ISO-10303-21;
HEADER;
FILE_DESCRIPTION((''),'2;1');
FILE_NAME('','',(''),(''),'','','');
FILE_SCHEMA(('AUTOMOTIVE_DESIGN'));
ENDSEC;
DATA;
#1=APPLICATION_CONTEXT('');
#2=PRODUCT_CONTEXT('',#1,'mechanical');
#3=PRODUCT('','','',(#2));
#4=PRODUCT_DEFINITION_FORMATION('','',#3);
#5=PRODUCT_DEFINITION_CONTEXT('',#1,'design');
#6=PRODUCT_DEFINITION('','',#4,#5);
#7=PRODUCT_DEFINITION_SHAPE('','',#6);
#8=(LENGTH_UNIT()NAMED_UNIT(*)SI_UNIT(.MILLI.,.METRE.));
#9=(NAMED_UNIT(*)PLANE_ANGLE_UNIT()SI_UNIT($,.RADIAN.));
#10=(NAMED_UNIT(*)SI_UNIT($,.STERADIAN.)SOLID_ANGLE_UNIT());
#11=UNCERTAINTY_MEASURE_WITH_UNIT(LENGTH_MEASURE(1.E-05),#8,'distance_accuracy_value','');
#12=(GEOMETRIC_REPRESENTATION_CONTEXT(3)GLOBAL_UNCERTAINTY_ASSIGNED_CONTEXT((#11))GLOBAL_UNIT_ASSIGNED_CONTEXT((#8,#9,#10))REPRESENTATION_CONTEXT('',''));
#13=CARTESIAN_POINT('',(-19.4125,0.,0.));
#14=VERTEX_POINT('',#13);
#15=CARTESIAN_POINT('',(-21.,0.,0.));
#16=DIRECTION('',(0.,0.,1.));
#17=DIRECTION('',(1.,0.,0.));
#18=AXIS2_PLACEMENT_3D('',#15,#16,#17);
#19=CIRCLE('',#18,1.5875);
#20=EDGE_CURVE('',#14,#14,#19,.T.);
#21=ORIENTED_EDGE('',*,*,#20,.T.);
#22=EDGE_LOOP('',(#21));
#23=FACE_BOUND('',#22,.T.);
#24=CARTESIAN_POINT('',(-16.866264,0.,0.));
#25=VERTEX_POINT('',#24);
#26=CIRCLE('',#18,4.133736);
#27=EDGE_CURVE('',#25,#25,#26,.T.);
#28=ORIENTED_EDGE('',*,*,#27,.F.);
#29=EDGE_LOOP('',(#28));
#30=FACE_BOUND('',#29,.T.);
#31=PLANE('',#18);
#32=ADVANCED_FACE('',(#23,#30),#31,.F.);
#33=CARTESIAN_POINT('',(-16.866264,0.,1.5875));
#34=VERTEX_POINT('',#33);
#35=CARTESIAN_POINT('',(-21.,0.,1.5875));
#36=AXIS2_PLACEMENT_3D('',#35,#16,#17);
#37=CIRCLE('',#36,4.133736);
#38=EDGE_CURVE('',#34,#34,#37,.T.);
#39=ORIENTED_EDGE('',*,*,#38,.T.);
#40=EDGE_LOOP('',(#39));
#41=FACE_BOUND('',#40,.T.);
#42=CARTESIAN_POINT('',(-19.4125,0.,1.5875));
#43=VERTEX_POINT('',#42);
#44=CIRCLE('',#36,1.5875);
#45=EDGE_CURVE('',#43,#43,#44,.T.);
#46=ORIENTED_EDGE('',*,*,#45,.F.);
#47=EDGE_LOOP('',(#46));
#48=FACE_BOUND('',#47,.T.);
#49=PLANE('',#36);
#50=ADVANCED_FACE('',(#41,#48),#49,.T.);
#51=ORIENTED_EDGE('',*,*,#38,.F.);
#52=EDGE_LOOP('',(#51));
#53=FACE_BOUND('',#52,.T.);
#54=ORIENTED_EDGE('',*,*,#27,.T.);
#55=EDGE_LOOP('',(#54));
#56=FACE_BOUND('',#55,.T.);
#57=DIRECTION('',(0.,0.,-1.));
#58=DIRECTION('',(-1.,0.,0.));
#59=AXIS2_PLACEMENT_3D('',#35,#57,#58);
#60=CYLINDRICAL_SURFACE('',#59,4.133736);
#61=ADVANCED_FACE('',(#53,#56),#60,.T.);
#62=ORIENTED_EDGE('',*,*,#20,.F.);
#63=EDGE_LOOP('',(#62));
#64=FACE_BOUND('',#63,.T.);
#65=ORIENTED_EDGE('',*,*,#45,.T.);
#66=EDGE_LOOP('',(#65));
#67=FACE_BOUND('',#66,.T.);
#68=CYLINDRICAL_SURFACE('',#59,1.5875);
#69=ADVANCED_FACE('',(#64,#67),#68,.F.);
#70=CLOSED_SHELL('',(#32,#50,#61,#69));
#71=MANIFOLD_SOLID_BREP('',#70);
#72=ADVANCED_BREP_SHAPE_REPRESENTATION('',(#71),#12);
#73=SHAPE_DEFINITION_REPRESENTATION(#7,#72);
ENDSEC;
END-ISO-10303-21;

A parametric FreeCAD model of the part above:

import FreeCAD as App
import Part
import Sketcher

V = App.Vector
Q = App.Units.Quantity

doc = App.newDocument("Part")
params = doc.addObject("Spreadsheet::Sheet", "Params")
for row, (alias, value) in enumerate([
    ("sketch1_diameter", "0.125 in"),
    ("pad1_length", "0.0625 in"),
], start=1):
    params.set(f"A{row}", alias)
    params.set(f"B{row}", "=" + value)
    params.setAlias(f"B{row}", alias)

body = doc.addObject("PartDesign::Body", "Body")

sketch1 = body.newObject("Sketcher::SketchObject", "Sketch")
sketch1.AttachmentSupport = (doc.getObject("XY_Plane"), [""])
sketch1.MapMode = "FlatFace"
sketch1.addGeometry([
    Part.Circle(V(-21, 0, 0), V(0, 0, 1), 4.1),
    Part.Circle(V(-21, 0, 0), V(0, 0, 1), 1.6),
], False)
sketch1.addConstraint([
    Sketcher.Constraint("Coincident", 1, 3, 0, 3),
    Sketcher.Constraint("PointOnObject", 0, 3, -1),
    Sketcher.Constraint("Diameter", 1, Q("0.125 in")),
    Sketcher.Constraint("Diameter", 0, 8.267473),
    Sketcher.Constraint("DistanceX", 0, 3, -1, 1, 21.0),
])
sketch1.setExpression("Constraints[2]", "Params.sketch1_diameter")
pad1 = body.newObject("PartDesign::Pad", "Pad")
pad1.Profile = sketch1
pad1.setExpression("Length", "Params.pad1_length")

doc.recompute()
